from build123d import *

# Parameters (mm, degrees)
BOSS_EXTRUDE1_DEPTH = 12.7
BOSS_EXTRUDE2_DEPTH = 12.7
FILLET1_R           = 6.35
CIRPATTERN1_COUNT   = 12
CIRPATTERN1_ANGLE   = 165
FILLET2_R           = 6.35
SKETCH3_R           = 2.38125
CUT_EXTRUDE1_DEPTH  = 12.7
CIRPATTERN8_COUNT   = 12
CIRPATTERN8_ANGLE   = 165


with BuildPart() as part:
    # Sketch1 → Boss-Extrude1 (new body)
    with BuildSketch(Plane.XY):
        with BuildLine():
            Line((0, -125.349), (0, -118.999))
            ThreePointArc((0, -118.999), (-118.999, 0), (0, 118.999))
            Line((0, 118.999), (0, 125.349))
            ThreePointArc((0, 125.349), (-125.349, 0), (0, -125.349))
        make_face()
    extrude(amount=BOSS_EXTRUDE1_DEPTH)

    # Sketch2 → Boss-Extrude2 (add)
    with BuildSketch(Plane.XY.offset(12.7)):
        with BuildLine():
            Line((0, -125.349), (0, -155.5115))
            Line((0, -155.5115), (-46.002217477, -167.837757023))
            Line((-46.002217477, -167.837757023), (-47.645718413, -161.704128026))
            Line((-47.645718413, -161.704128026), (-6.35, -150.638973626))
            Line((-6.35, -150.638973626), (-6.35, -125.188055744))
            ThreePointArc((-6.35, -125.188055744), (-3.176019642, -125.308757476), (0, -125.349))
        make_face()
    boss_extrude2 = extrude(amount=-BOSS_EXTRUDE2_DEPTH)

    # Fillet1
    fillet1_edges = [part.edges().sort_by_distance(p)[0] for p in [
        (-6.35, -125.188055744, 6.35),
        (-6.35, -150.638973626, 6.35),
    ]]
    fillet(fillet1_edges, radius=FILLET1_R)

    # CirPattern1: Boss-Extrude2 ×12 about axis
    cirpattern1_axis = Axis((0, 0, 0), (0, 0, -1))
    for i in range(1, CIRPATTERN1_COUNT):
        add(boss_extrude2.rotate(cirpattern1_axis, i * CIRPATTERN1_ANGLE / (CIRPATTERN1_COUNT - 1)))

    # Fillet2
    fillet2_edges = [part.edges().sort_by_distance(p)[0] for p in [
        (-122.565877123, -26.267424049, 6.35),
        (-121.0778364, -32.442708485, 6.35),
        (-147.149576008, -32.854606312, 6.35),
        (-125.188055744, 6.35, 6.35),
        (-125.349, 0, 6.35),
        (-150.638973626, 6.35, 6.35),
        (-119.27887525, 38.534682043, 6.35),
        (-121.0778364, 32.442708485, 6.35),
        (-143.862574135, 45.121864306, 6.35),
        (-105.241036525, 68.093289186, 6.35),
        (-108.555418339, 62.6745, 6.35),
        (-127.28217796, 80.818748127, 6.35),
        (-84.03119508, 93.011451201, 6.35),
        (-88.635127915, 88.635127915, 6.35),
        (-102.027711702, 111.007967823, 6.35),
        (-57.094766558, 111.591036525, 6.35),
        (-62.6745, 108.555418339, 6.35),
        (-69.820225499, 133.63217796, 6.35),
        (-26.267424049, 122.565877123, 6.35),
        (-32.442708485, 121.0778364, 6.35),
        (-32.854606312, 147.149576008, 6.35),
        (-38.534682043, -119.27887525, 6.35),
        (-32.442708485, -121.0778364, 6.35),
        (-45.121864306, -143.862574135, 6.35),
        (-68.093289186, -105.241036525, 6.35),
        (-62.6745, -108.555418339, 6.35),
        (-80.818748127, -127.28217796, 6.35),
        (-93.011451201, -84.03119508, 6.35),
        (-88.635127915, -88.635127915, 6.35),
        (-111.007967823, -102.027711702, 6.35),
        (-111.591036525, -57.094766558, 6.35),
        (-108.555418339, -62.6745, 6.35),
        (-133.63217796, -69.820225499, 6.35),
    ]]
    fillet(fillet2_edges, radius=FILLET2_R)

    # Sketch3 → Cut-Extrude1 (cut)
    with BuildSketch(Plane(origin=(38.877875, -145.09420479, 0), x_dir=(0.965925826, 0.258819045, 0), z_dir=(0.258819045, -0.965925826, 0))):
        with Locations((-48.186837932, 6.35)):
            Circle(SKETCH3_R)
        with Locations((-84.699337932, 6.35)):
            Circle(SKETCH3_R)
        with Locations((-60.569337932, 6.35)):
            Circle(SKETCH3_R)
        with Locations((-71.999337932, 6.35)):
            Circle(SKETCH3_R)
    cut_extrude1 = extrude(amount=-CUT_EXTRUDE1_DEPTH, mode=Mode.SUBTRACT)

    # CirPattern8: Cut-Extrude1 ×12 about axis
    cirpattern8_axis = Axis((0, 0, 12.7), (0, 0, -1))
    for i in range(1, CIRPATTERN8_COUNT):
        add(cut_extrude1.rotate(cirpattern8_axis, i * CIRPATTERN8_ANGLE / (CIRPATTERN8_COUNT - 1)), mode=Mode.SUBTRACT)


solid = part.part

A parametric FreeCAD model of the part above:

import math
import FreeCAD as App
import Part
import Sketcher
from FreeCAD import Vector
Q = App.Units.Quantity


def edges_at(feature, points):
    """Names of the edges that pass closest to the given points."""
    edges = feature.Shape.Edges
    near = lambda p: min(range(len(edges)), key=lambda i: edges[i].distToShape(Part.Vertex(*p))[0])
    return sorted({f"Edge{near(p) + 1}" for p in points})

doc = App.newDocument("Part")
body = doc.addObject("PartDesign::Body", "Body")

# Sketch on XY plane
sketch1 = body.newObject("Sketcher::SketchObject", "Sketch")
sketch1.AttachmentSupport = (doc.getObject("XY_Plane"), [""])
sketch1.MapMode = "FlatFace"
sketch1.addGeometry([
    Part.LineSegment(Vector(0, -125, 0), Vector(0, -119, 0)),
    Part.ArcOfCircle(Part.Circle(Vector(0, 0, 0), Vector(0, 0, 1), 119), math.radians(90), math.radians(270)),
    Part.LineSegment(Vector(0, 119, 0), Vector(0, 125, 0)),
    Part.ArcOfCircle(Part.Circle(Vector(0, 0, 0), Vector(0, 0, 1), 125), math.radians(90), math.radians(270)),
], False)
sketch1.addConstraint([
    Sketcher.Constraint("Coincident", 0, 2, 1, 2),
    Sketcher.Constraint("Coincident", 1, 1, 2, 1),
    Sketcher.Constraint("Coincident", 2, 2, 3, 1),
    Sketcher.Constraint("Coincident", 3, 2, 0, 1),
    Sketcher.Constraint("Vertical", 0),
    Sketcher.Constraint("Vertical", 2),
    Sketcher.Constraint("Coincident", 1, 3, -1, 1),
    Sketcher.Constraint("Coincident", 3, 3, -1, 1),
    Sketcher.Constraint("PointOnObject", 0, 2, -2),
    Sketcher.Constraint("PointOnObject", 1, 1, -2),
    Sketcher.Constraint("Radius", 1, Q("4.685 in")),
    Sketcher.Constraint("Radius", 3, Q("4.935 in")),
])
pad1 = body.newObject("PartDesign::Pad", "Pad")
pad1.Profile = sketch1
pad1.Length = Q("0.5 in")

# Sketch on XY plane
sketch2 = body.newObject("Sketcher::SketchObject", "Sketch001")
sketch2.AttachmentSupport = (doc.getObject("XY_Plane"), [""])
sketch2.MapMode = "FlatFace"
sketch2.AttachmentOffset = App.Placement(Vector(0, 0, 0.5 * 25.4), App.Rotation())
sketch2.addGeometry([
    Part.LineSegment(Vector(0, -156, 0), Vector(0, -125, 0)),  # 0
    Part.ArcOfCircle(Part.Circle(Vector(0, 0, 0), Vector(0, 0, 1), 125), math.radians(-92.9), math.radians(-90)),  # 1
    Part.LineSegment(Vector(-6, -125, 0), Vector(-6, -151, 0)),  # 2
    Part.LineSegment(Vector(-6, -151, 0), Vector(-48, -162, 0)),  # 3
    Part.LineSegment(Vector(-48, -162, 0), Vector(-46, -168, 0)),  # 4
    Part.LineSegment(Vector(-46, -168, 0), Vector(0, -156, 0)),  # 5
], False)
sketch2.addConstraint([
    Sketcher.Constraint("Coincident", 0, 2, 1, 2),
    Sketcher.Constraint("Coincident", 1, 1, 2, 1),
    Sketcher.Constraint("Coincident", 2, 2, 3, 1),
    Sketcher.Constraint("Coincident", 3, 2, 4, 1),
    Sketcher.Constraint("Coincident", 4, 2, 5, 1),
    Sketcher.Constraint("Coincident", 5, 2, 0, 1),
    Sketcher.Constraint("Vertical", 0),
    Sketcher.Constraint("Vertical", 2),
    Sketcher.Constraint("Coincident", 1, 3, -1, 1),
    Sketcher.Constraint("PointOnObject", 0, 2, -2),
    Sketcher.Constraint("Perpendicular", 3, 4),
    Sketcher.Constraint("Perpendicular", 4, 5),
    Sketcher.Constraint("Angle", 3, Q("-165 deg")),
    Sketcher.Constraint("Radius", 1, Q("4.935 in")),
    Sketcher.Constraint("Distance", 4, Q("0.25 in")),
    Sketcher.Constraint("DistanceY", 0, 1, 0, 2, Q("1.1875 in")),
    Sketcher.Constraint("DistanceX", 1, 1, -1, 1, Q("0.25 in")),
    Sketcher.Constraint("Distance", 5, Q("1.875 in")),
])
pad2 = body.newObject("PartDesign::Pad", "Pad001")
pad2.Profile = sketch2
pad2.Length = Q("0.5 in")
pad2.Reversed = True
doc.recompute()

fillet = body.newObject("PartDesign::Fillet", "Fillet")
fillet.Base = (pad2, edges_at(pad2, [(-6.35, -125.188, 6.35), (-6.35, -150.639, 6.35)]))
fillet.Radius = Q("0.25 in")
doc.recompute()

polarpattern = body.newObject("PartDesign::PolarPattern", "PolarPattern")
polarpattern.Originals = [pad2]
polarpattern.Axis = (doc.getObject("Z_Axis"), [""])
polarpattern.Angle = 165
polarpattern.Occurrences = 12
polarpattern.Reversed = True
body.Tip = polarpattern
doc.recompute()

fillet2 = body.newObject("PartDesign::Fillet", "Fillet001")
fillet2.Base = (polarpattern, edges_at(polarpattern, [
    (-122.566, -26.267, 6.35),
    (-121.078, -32.443, 6.35),
    (-147.15, -32.855, 6.35),
    (-125.188, 6.35, 6.35),
    (-125.349, 0, 6.35),
    (-150.639, 6.35, 6.35),
    (-119.279, 38.535, 6.35),
    (-121.078, 32.443, 6.35),
    (-143.863, 45.122, 6.35),
    (-105.241, 68.093, 6.35),
    (-108.555, 62.675, 6.35),
    (-127.282, 80.819, 6.35),
    (-84.031, 93.011, 6.35),
    (-88.635, 88.635, 6.35),
    (-102.028, 111.008, 6.35),
    (-57.095, 111.591, 6.35),
    (-62.675, 108.555, 6.35),
    (-69.82, 133.632, 6.35),
    (-26.267, 122.566, 6.35),
    (-32.443, 121.078, 6.35),
    (-32.855, 147.15, 6.35),
    (-38.535, -119.279, 6.35),
    (-32.443, -121.078, 6.35),
    (-45.122, -143.863, 6.35),
    (-68.093, -105.241, 6.35),
    (-62.675, -108.555, 6.35),
    (-80.819, -127.282, 6.35),
    (-93.011, -84.031, 6.35),
    (-88.635, -88.635, 6.35),
    (-111.008, -102.028, 6.35),
    (-111.591, -57.095, 6.35),
    (-108.555, -62.675, 6.35),
    (-133.632, -69.82, 6.35),
]))
fillet2.Radius = Q("0.25 in")

# Sketch on an angled plane
sketch3 = body.newObject("Sketcher::SketchObject", "Sketch002")
sketch3.Placement = App.Placement(Vector(38.877875, -145.094205, 0), App.Rotation(Vector(0.965925826, 0.258819045, 0), Vector(0, 0, 0.999999999), Vector(0.258819045, -0.965925826, 0), "ZXY"))
sketch3.addGeometry([
    Part.Circle(Vector(-48.2, 6.3, 0), Vector(0, 0, 1), 2.4),
    Part.Circle(Vector(-84.7, 6.3, 0), Vector(0, 0, 1), 2.4),
    Part.Circle(Vector(-60.6, 6.3, 0), Vector(0, 0, 1), 2.4),
    Part.Circle(Vector(-72, 6.3, 0), Vector(0, 0, 1), 2.4),
], False)
sketch3.addConstraint([
    Sketcher.Constraint("Equal", 0, 1),
    Sketcher.Constraint("Equal", 1, 2),
    Sketcher.Constraint("Equal", 2, 3),
    Sketcher.Constraint("Horizontal", 0, 3, 1, 3),
    Sketcher.Constraint("Horizontal", 1, 3, 2, 3),
    Sketcher.Constraint("Horizontal", 2, 3, 3, 3),
    Sketcher.Constraint("Diameter", 0, Q("0.1875 in")),
    Sketcher.Constraint("DistanceX", 1, 3, 3, 3, Q("0.5 in")),
    Sketcher.Constraint("DistanceY", -1, 1, 0, 3, Q("0.25 in")),
    Sketcher.Constraint("DistanceX", 1, 3, 2, 3, Q("0.95 in")),
    Sketcher.Constraint("DistanceX", 1, 3, 0, 3, Q("1.4375 in")),
    Sketcher.Constraint("DistanceX", 0, 3, -1, 1, 48.186838),
])
pocket1 = body.newObject("PartDesign::Pocket", "Pocket")
pocket1.Profile = sketch3
pocket1.Length = Q("0.5 in")
doc.recompute()

polarpattern2 = body.newObject("PartDesign::PolarPattern", "PolarPattern001")
polarpattern2.Originals = [pocket1]
polarpattern2.Axis = (doc.getObject("Z_Axis"), [""])
polarpattern2.Angle = 165
polarpattern2.Occurrences = 12
polarpattern2.Reversed = True
body.Tip = polarpattern2

doc.recompute()
